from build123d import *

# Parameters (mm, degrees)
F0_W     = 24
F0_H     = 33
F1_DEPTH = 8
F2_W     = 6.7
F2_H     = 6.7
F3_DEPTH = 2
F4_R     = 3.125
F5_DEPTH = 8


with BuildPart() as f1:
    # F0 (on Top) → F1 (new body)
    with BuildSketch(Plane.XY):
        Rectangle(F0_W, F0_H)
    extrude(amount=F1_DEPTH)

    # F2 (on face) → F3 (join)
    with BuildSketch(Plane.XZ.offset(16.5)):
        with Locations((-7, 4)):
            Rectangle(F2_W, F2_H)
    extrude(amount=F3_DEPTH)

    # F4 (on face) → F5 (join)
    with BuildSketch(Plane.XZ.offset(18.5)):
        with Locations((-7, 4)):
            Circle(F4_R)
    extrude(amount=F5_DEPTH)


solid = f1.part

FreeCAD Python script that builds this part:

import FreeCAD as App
import Part
import Sketcher


def add_polygon(sketch, points):
    """Adds a closed chain of lines whose ends are joined by coincident constraints."""
    first, n = sketch.GeometryCount, len(points)
    for a, b in zip(points, points[1:] + points[:1]):
        sketch.addGeometry(Part.LineSegment(App.Vector(*a, 0), App.Vector(*b, 0)), False)
    for i in range(n):
        sketch.addConstraint(Sketcher.Constraint("Coincident", first + i, 2, first + (i + 1) % n, 1))

doc = App.newDocument("Part")
body = doc.addObject("PartDesign::Body", "Body")

# Sketch on XY plane
sketch1 = body.newObject("Sketcher::SketchObject", "Sketch")
sketch1.AttachmentSupport = (doc.getObject("XY_Plane"), [""])
sketch1.MapMode = "FlatFace"
add_polygon(sketch1, [(-12, 16), (-12, -16), (12, -16), (12, 16)])  # lines 0-3
sketch1.addConstraint([
    Sketcher.Constraint("Vertical", 0),
    Sketcher.Constraint("Horizontal", 1),
    Sketcher.Constraint("Vertical", 2),
    Sketcher.Constraint("Horizontal", 3),
    Sketcher.Constraint("Symmetric", 0, 2, 2, 2, -1, 1),
    Sketcher.Constraint("DistanceX", 1, 1, 1, 2, 24.0),
    Sketcher.Constraint("DistanceY", 0, 2, 0, 1, 33.0),
])
pad1 = body.newObject("PartDesign::Pad", "Pad")
pad1.Profile = sketch1
pad1.Length = 8

# Sketch on XZ plane
sketch2 = body.newObject("Sketcher::SketchObject", "Sketch001")
sketch2.AttachmentSupport = (doc.getObject("XZ_Plane"), [""])
sketch2.MapMode = "FlatFace"
sketch2.AttachmentOffset = App.Placement(App.Vector(0, 0, 16.5), App.Rotation())
add_polygon(sketch2, [(-10, 7), (-10, 1), (-4, 1), (-4, 7)])  # lines 0-3
sketch2.addConstraint([
    Sketcher.Constraint("Vertical", 0),
    Sketcher.Constraint("Horizontal", 1),
    Sketcher.Constraint("Vertical", 2),
    Sketcher.Constraint("Horizontal", 3),
    Sketcher.Constraint("Equal", 3, 0),
    Sketcher.Constraint("DistanceX", 1, 1, 1, 2, 6.7),
    Sketcher.Constraint("DistanceX", 0, 2, -1, 1, 10.35),
    Sketcher.Constraint("DistanceY", -1, 1, 0, 2, 0.65),
])
pad2 = body.newObject("PartDesign::Pad", "Pad001")
pad2.Profile = sketch2
pad2.Length = 2

# Sketch on XZ plane
sketch3 = body.newObject("Sketcher::SketchObject", "Sketch002")
sketch3.AttachmentSupport = (doc.getObject("XZ_Plane"), [""])
sketch3.MapMode = "FlatFace"
sketch3.AttachmentOffset = App.Placement(App.Vector(0, 0, 18.5), App.Rotation())
sketch3.addGeometry(Part.Circle(App.Vector(-7, 4, 0), App.Vector(0, 0, 1), 3.1), False)
sketch3.addConstraint([
    Sketcher.Constraint("Diameter", 0, 6.25),
    Sketcher.Constraint("DistanceX", 0, 3, -1, 1, 7.0),
    Sketcher.Constraint("DistanceY", -1, 1, 0, 3, 4.0),
])
pad3 = body.newObject("PartDesign::Pad", "Pad002")
pad3.Profile = sketch3
pad3.Length = 8

doc.recompute()
